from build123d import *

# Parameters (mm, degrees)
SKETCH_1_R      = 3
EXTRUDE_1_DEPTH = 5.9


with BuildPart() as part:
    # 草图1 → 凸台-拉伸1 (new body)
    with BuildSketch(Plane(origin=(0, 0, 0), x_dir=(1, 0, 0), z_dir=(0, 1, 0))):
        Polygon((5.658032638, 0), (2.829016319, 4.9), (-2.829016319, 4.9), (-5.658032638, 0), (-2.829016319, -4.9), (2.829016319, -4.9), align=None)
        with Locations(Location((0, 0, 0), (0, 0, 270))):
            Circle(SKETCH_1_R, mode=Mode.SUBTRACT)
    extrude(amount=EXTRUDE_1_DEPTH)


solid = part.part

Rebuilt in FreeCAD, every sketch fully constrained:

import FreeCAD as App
import Part
import Sketcher
from FreeCAD import Vector
Q = App.Units.Quantity

doc = App.newDocument("Part")
body = doc.addObject("PartDesign::Body", "Body")

sketch1 = doc.addObject("Sketcher::SketchObject", "Sketch")
body.addObject(sketch1)
sketch1.AttachmentSupport = (doc.XZ_Plane, [""])
sketch1.MapMode = "FlatFace"
sketch1.addGeometry([
    Part.LineSegment(Vector(5.7, 0, 0), Vector(2.8, -4.9, 0)),
    Part.LineSegment(Vector(2.8, -4.9, 0), Vector(-2.8, -4.9, 0)),
    Part.LineSegment(Vector(-2.8, -4.9, 0), Vector(-5.7, 0, 0)),
    Part.LineSegment(Vector(-5.7, 0, 0), Vector(-2.8, 4.9, 0)),
    Part.LineSegment(Vector(-2.8, 4.9, 0), Vector(2.8, 4.9, 0)),
    Part.LineSegment(Vector(2.8, 4.9, 0), Vector(5.7, 0, 0)),
    Part.Circle(Vector(0, 0, 0), Vector(0, 0, 1), 3),
], False)
sketch1.addConstraint([
    Sketcher.Constraint("Coincident", 0, 2, 1, 1),
    Sketcher.Constraint("Coincident", 1, 2, 2, 1),
    Sketcher.Constraint("Coincident", 2, 2, 3, 1),
    Sketcher.Constraint("Coincident", 3, 2, 4, 1),
    Sketcher.Constraint("Coincident", 4, 2, 5, 1),
    Sketcher.Constraint("Coincident", 5, 2, 0, 1),
    Sketcher.Constraint("Horizontal", 1),
    Sketcher.Constraint("Horizontal", 4),
    Sketcher.Constraint("Coincident", 6, 3, -1, 1),
    Sketcher.Constraint("Symmetric", 0, 2, 3, 2, -1, 1),
    Sketcher.Constraint("Symmetric", 2, 2, 5, 2, -1, 1),
    Sketcher.Constraint("PointOnObject", 2, 2, -1),
    Sketcher.Constraint("Parallel", 2, 5),
    Sketcher.Constraint("Vertical", 1, 2, 3, 2),
    Sketcher.Constraint("Diameter", 6, 6.0),
    Sketcher.Constraint("Angle", 0, Q("-120 deg")),
    Sketcher.Constraint("DistanceY", 0, 2, -1, 1, 4.9),
    Sketcher.Constraint("DistanceX", 1, 2, 1, 1, 5.658033),
])
pad1 = doc.addObject("PartDesign::Pad", "Pad")
body.addObject(pad1)
pad1.Profile = sketch1
pad1.Length = 5.9
pad1.Reversed = True

doc.recompute()
